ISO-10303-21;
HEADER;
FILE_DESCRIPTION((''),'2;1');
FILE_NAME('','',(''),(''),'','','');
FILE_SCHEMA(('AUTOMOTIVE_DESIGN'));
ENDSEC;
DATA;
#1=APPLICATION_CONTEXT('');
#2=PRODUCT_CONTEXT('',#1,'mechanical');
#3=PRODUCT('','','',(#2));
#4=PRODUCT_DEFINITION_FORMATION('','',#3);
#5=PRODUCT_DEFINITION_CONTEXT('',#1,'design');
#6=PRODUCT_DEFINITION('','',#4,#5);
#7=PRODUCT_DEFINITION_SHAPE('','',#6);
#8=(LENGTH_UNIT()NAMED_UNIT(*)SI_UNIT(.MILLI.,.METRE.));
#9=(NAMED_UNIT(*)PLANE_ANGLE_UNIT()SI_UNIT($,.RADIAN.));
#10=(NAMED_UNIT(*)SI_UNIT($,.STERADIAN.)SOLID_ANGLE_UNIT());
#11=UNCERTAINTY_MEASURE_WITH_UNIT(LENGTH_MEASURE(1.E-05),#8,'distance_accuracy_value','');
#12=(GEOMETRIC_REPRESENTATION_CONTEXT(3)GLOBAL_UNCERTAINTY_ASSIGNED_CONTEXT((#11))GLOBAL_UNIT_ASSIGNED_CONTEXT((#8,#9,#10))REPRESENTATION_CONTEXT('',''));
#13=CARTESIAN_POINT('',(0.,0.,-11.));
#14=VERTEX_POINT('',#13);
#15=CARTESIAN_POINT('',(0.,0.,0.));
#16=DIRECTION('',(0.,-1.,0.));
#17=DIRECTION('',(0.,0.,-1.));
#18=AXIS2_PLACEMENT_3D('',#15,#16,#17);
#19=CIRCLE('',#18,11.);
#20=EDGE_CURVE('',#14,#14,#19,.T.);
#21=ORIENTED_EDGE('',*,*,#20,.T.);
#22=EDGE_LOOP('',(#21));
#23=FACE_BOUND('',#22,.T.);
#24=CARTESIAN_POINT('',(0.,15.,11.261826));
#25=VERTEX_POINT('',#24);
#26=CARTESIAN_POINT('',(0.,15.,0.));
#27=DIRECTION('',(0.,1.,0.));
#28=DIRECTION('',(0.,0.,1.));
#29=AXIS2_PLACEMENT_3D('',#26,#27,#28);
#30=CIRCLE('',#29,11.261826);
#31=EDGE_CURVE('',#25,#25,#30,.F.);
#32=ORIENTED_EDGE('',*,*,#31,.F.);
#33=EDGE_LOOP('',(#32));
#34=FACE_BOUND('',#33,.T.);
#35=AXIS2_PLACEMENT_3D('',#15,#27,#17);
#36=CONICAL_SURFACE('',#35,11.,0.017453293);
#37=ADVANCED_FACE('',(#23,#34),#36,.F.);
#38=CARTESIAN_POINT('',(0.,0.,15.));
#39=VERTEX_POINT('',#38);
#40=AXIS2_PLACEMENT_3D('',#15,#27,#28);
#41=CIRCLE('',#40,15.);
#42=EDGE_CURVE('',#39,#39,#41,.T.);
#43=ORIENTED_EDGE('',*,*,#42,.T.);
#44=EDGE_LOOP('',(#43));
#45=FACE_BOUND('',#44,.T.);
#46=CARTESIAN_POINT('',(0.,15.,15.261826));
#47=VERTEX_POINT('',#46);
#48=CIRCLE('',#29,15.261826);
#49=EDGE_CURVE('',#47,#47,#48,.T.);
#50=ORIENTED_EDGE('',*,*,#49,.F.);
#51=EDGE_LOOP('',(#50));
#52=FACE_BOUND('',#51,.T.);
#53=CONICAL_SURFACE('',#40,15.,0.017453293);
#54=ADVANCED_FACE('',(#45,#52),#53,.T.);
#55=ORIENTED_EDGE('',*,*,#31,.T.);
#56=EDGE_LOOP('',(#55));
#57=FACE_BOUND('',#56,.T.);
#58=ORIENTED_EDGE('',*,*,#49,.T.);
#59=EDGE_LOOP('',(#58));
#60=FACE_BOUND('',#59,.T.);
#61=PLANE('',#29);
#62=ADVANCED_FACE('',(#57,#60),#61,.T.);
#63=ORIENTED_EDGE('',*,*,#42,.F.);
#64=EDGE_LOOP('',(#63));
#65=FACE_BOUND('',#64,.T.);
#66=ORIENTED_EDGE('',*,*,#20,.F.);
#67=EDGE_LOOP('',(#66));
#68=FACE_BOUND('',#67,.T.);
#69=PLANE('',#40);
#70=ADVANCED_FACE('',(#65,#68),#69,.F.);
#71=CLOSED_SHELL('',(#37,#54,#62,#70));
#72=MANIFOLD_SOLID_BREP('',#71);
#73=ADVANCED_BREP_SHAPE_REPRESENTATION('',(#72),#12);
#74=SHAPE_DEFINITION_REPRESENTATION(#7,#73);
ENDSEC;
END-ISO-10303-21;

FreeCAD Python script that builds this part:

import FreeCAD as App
import Part
import Sketcher

V = App.Vector
Q = App.Units.Quantity

doc = App.newDocument("Part")
body = doc.addObject("PartDesign::Body", "Body")

# Sketch on XZ plane
sketch1 = body.newObject("Sketcher::SketchObject", "Sketch")
sketch1.AttachmentSupport = (doc.getObject("XZ_Plane"), [""])
sketch1.MapMode = "FlatFace"
sketch1.addGeometry(Part.Circle(V(0, 0, 0), V(0, 0, 1), 15), False)
sketch1.addConstraint([
    Sketcher.Constraint("Coincident", 0, 3, -1, 1),
    Sketcher.Constraint("Diameter", 0, Q("30 mm")),
])
pad1 = body.newObject("PartDesign::Pad", "Pad")
pad1.Profile = sketch1
pad1.Length = 15
pad1.Reversed = True
pad1.TaperAngle = 1

# Sketch on XZ plane
sketch2 = body.newObject("Sketcher::SketchObject", "Sketch001")
sketch2.AttachmentSupport = (doc.getObject("XZ_Plane"), [""])
sketch2.MapMode = "FlatFace"
sketch2.addGeometry(Part.Circle(V(0, 0, 0), V(0, 0, 1), 11), False)
sketch2.addConstraint([
    Sketcher.Constraint("Coincident", 0, 3, -1, 1),
    Sketcher.Constraint("Diameter", 0, Q("22 mm")),
])
pocket1 = body.newObject("PartDesign::Pocket", "Pocket")
pocket1.Profile = sketch2
pocket1.Length = 15
pocket1.TaperAngle = 1

doc.recompute()
